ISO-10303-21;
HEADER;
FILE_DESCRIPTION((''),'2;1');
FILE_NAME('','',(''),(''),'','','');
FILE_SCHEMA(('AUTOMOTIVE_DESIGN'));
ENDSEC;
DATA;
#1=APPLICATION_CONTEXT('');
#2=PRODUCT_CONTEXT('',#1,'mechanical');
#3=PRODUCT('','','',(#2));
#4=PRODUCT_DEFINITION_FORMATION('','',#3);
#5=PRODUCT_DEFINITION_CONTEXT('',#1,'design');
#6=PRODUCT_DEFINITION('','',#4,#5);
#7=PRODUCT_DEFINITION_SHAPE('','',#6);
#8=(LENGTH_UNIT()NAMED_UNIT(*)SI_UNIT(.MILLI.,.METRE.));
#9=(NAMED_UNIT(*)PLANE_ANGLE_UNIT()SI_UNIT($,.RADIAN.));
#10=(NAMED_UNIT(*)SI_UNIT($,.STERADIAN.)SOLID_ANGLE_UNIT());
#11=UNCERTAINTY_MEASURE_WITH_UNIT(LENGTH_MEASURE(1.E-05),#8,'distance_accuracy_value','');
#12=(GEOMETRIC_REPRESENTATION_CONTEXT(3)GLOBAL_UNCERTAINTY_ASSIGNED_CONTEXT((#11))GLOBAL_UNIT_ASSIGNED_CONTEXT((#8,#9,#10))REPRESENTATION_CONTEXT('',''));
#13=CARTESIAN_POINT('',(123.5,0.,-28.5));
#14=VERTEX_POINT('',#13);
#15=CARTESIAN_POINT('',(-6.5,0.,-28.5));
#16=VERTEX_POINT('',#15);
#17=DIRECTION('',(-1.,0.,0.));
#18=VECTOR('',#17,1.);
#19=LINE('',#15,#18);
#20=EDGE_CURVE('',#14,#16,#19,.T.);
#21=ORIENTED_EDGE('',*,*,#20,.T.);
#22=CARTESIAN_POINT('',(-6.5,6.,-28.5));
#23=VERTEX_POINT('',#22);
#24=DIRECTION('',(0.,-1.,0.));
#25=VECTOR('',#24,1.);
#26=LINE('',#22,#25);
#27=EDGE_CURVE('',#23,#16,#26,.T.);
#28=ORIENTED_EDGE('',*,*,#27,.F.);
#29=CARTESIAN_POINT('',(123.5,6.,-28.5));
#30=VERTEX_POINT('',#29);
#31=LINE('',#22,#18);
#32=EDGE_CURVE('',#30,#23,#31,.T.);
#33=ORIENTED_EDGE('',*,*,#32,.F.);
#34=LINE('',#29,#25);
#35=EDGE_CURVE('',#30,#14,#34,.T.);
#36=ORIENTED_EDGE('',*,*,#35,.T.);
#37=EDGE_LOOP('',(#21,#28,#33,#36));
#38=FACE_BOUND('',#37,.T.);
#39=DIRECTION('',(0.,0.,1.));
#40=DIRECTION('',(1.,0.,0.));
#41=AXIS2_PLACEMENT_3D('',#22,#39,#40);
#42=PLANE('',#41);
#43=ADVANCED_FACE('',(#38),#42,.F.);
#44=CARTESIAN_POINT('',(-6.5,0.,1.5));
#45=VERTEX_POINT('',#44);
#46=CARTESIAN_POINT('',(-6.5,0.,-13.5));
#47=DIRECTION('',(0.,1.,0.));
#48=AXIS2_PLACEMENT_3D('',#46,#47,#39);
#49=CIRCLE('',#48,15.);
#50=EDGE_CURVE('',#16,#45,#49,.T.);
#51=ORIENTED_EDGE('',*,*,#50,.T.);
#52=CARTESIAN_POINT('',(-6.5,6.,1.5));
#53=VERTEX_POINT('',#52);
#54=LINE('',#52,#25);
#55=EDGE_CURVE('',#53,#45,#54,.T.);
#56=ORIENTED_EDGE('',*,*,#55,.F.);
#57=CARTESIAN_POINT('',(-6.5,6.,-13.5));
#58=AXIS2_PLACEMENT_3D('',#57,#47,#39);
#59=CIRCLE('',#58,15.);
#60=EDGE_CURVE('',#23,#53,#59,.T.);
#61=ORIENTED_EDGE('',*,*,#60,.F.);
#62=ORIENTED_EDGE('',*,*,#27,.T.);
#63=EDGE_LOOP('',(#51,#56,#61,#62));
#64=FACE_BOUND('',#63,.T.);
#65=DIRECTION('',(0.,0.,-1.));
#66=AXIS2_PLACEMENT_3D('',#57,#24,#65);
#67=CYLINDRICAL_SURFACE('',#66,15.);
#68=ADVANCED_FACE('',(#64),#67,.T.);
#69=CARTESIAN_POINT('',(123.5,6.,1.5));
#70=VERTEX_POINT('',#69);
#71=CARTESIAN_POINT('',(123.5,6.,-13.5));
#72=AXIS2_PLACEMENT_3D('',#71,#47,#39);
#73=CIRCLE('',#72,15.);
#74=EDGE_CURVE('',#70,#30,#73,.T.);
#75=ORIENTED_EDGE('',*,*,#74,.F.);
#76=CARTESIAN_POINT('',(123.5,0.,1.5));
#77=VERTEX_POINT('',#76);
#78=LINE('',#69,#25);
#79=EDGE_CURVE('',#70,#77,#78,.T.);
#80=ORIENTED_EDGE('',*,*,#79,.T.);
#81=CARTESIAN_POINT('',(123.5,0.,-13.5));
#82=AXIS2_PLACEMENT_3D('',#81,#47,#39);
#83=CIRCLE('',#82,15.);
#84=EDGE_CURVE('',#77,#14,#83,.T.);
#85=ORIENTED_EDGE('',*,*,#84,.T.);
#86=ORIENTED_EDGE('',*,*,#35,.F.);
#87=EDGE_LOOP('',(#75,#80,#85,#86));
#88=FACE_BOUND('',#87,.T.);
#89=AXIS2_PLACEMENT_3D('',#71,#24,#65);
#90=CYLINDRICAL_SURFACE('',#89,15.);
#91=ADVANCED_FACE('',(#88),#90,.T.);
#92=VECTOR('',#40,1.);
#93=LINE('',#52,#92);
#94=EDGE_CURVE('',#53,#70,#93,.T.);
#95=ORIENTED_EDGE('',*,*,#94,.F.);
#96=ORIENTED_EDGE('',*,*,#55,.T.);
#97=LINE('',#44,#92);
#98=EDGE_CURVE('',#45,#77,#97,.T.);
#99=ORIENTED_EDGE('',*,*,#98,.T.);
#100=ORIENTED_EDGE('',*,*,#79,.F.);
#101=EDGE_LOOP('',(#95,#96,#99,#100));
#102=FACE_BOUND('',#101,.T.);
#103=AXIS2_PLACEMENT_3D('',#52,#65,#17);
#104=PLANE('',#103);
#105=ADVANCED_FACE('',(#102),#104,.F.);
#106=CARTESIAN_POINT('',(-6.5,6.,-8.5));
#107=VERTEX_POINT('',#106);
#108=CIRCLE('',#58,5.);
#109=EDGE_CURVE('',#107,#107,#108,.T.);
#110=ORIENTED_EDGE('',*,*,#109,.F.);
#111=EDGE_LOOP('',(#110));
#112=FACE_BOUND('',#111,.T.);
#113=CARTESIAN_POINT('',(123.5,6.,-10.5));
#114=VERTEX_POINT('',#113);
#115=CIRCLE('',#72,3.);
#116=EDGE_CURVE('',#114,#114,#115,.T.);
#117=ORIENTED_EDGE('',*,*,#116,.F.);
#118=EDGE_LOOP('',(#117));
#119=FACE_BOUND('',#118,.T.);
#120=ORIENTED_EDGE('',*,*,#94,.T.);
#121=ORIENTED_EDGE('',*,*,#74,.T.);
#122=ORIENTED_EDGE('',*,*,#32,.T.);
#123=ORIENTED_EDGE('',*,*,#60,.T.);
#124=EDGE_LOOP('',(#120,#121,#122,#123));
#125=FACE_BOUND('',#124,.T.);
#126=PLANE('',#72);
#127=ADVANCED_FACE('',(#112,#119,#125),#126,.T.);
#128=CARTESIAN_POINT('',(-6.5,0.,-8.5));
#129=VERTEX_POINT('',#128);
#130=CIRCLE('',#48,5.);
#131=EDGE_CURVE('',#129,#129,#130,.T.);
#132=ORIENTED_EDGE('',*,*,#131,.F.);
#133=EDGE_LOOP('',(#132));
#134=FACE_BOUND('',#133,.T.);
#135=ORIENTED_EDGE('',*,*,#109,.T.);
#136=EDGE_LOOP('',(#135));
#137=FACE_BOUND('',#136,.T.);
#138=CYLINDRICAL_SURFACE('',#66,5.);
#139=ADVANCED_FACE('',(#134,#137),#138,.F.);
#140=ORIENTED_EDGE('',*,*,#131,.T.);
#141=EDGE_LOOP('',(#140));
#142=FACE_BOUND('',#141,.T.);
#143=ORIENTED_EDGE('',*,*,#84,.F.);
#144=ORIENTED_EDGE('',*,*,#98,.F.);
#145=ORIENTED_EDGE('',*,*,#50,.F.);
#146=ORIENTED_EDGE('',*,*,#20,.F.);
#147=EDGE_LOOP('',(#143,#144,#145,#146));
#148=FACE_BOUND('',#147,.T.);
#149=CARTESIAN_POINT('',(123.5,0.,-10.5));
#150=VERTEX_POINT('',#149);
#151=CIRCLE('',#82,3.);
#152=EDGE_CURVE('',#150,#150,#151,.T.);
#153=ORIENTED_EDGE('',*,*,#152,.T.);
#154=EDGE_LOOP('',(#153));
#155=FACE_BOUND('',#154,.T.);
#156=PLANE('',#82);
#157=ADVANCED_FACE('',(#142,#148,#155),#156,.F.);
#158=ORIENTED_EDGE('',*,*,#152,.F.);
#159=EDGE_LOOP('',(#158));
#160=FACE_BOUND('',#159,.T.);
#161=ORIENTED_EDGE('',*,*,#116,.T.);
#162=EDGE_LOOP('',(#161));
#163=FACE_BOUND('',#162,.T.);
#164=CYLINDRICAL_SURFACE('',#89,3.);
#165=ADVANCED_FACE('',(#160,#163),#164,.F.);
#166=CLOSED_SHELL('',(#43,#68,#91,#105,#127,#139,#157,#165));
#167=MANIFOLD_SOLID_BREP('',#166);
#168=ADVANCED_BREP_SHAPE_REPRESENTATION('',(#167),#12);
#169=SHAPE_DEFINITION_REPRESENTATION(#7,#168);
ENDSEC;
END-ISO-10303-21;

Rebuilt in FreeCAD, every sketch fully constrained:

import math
import FreeCAD as App
import Part
import Sketcher

V = App.Vector

doc = App.newDocument("Part")
body = doc.addObject("PartDesign::Body", "Body")

# Sketch on XZ plane
sketch1 = body.newObject("Sketcher::SketchObject", "Sketch")
sketch1.AttachmentSupport = (doc.getObject("XZ_Plane"), [""])
sketch1.MapMode = "FlatFace"
sketch1.addGeometry(Part.LineSegment(V(123.5, -28.5, 0), V(-6.5, -28.5, 0)), False)
sketch1.addGeometry(Part.ArcOfCircle(Part.Circle(V(-6.5, -13.5, 0), V(0, 0, 1), 15), math.radians(90), math.radians(270)), False)
sketch1.addGeometry(Part.LineSegment(V(-6.5, 1.5, 0), V(123.5, 1.5, 0)), False)
sketch1.addGeometry(Part.ArcOfCircle(Part.Circle(V(123.5, -13.5, 0), V(0, 0, 1), 15), math.radians(-90), math.radians(90)), False)
sketch1.addGeometry(Part.Circle(V(123.5, -13.5, 0), V(0, 0, 1), 3), False)
sketch1.addGeometry(Part.Circle(V(-6.5, -13.5, 0), V(0, 0, 1), 5), False)
sketch1.addConstraint(Sketcher.Constraint("Tangent", 0, 2, 1, 2))
sketch1.addConstraint(Sketcher.Constraint("Tangent", 1, 1, 2, 1))
sketch1.addConstraint(Sketcher.Constraint("Tangent", 2, 2, 3, 2))
sketch1.addConstraint(Sketcher.Constraint("Tangent", 3, 1, 0, 1))
sketch1.addConstraint(Sketcher.Constraint("Horizontal", 0))
sketch1.addConstraint(Sketcher.Constraint("Horizontal", 2))
sketch1.addConstraint(Sketcher.Constraint("Coincident", 4, 3, 3, 3))
sketch1.addConstraint(Sketcher.Constraint("Coincident", 5, 3, 1, 3))
sketch1.addConstraint(Sketcher.Constraint("Diameter", 4, 6.0))
sketch1.addConstraint(Sketcher.Constraint("Diameter", 5, 10.0))
sketch1.addConstraint(Sketcher.Constraint("Radius", 1, 15.0))
sketch1.addConstraint(Sketcher.Constraint("DistanceX", 0, 2, 0, 1, 130.0))
sketch1.addConstraint(Sketcher.Constraint("DistanceX", 1, 3, -1, 1, 6.5))
sketch1.addConstraint(Sketcher.Constraint("DistanceY", 1, 3, -1, 1, 13.5))
pad1 = body.newObject("PartDesign::Pad", "Pad")
pad1.Profile = sketch1
pad1.Length = 6
pad1.Reversed = True

doc.recompute()
